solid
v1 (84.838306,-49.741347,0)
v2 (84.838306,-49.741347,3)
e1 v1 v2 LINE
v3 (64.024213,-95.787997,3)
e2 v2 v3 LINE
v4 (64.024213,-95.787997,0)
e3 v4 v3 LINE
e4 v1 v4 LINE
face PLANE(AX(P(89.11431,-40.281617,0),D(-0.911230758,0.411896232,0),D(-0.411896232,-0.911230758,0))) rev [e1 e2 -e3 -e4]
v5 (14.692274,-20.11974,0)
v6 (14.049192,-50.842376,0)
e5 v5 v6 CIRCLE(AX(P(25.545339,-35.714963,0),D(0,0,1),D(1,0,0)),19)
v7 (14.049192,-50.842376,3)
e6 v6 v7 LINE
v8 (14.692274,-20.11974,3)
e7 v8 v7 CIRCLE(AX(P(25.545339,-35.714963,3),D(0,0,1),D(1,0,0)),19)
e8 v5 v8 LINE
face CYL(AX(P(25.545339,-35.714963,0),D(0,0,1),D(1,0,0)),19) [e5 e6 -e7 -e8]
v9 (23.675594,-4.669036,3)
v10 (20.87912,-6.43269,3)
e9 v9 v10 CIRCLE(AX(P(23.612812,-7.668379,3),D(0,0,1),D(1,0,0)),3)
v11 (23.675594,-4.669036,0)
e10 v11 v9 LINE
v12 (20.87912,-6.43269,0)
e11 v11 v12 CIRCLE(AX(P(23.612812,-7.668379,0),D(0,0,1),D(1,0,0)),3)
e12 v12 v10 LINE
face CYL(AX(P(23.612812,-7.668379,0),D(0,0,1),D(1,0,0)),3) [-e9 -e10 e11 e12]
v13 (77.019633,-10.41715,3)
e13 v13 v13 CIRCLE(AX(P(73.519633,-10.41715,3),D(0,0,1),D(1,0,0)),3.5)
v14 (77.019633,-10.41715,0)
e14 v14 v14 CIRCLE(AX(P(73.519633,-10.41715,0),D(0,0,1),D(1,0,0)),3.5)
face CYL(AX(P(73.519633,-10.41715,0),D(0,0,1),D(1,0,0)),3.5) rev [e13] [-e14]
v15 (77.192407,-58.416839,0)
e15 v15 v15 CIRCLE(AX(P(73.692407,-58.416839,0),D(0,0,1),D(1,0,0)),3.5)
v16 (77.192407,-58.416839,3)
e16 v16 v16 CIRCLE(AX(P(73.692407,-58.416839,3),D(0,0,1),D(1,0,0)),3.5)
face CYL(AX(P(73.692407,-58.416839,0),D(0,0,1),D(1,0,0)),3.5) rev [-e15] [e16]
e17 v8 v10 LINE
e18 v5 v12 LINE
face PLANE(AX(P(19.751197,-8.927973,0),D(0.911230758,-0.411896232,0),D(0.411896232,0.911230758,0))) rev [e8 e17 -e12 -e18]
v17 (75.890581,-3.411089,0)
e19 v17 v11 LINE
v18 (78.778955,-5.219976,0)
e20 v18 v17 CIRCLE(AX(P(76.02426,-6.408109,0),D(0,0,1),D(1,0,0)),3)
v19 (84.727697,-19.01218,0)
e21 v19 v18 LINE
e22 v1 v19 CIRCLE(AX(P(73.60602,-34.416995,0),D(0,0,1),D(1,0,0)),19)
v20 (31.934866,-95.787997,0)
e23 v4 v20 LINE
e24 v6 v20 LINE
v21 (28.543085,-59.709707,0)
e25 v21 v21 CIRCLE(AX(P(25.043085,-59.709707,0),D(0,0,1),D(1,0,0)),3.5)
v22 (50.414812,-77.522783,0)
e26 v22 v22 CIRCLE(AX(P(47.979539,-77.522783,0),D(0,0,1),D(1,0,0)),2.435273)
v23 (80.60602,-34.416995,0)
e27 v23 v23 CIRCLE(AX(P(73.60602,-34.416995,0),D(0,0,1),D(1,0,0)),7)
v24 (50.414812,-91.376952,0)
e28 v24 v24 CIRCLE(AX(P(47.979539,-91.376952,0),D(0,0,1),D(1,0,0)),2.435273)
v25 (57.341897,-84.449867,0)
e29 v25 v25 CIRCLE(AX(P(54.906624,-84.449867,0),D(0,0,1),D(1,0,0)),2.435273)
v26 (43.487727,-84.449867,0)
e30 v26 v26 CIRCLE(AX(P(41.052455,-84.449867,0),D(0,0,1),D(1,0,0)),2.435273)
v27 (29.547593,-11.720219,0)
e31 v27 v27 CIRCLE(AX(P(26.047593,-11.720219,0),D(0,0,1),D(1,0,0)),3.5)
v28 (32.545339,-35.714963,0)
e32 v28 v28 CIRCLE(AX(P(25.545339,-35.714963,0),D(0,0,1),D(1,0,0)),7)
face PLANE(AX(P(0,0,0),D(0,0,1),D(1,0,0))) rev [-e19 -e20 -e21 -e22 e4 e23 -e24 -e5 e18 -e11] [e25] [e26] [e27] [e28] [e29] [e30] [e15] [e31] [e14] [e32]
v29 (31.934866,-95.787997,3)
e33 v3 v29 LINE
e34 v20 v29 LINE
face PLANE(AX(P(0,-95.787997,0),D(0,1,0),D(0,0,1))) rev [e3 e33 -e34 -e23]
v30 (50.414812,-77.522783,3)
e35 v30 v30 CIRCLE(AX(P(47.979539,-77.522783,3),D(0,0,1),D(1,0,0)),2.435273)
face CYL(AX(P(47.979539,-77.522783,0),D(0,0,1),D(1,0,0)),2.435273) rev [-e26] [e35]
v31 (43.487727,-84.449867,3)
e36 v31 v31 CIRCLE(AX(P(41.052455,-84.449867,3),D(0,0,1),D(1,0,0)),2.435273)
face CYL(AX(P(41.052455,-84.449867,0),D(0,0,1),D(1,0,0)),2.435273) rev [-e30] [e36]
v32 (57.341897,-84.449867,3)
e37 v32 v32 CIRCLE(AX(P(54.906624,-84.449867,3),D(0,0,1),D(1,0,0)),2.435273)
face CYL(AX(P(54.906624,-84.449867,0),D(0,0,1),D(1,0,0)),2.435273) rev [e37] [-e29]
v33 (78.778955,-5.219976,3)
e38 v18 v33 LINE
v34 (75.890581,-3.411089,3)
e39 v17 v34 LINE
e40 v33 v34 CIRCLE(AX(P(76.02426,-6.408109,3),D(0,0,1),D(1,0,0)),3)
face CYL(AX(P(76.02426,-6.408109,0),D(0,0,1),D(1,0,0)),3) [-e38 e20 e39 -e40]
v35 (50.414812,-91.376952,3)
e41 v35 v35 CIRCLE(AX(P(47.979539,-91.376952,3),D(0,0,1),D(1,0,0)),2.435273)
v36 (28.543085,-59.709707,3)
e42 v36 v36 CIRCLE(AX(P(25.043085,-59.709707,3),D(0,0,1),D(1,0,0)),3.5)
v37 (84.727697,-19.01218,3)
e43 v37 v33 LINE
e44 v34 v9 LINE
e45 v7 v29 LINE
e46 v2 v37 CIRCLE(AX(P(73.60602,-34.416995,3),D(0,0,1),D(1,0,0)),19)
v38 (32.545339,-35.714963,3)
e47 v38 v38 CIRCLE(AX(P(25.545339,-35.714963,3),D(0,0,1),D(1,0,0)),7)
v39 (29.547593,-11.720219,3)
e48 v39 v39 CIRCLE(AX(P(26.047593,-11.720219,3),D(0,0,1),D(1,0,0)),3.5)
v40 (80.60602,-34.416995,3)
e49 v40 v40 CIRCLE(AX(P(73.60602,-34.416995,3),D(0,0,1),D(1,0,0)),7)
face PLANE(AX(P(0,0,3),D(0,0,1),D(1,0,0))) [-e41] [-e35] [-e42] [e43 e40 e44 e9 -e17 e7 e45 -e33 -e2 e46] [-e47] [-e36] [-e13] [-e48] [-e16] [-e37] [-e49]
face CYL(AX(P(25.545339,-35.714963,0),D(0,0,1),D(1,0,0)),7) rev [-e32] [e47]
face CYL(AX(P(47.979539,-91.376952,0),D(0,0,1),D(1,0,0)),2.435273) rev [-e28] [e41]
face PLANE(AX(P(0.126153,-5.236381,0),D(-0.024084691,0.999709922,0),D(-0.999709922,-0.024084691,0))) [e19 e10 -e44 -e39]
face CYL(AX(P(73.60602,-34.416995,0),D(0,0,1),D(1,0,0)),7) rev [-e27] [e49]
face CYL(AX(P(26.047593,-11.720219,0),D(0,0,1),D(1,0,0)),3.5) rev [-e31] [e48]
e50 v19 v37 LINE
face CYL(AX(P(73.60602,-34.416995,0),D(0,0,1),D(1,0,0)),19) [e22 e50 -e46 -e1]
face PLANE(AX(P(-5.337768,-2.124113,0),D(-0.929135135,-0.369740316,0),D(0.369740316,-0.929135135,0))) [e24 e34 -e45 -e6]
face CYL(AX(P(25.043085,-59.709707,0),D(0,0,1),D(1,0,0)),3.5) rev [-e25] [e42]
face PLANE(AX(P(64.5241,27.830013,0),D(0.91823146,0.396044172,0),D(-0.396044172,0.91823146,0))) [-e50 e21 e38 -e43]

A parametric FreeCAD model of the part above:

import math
import FreeCAD as App
import Part
import Sketcher

V = App.Vector
Q = App.Units.Quantity


def add_polygon(sketch, points):
    """Adds a closed chain of lines whose ends are joined by coincident constraints."""
    first, n = sketch.GeometryCount, len(points)
    for a, b in zip(points, points[1:] + points[:1]):
        sketch.addGeometry(Part.LineSegment(App.Vector(*a, 0), App.Vector(*b, 0)), False)
    for i in range(n):
        sketch.addConstraint(Sketcher.Constraint("Coincident", first + i, 2, first + (i + 1) % n, 1))

doc = App.newDocument("Part")
params = doc.addObject("Spreadsheet::Sheet", "Params")
for row, (alias, value) in enumerate([
    ("sketch1_width", "95 mm"),
    ("sketch1_height", "100 mm"),
    ("pad1_length", "3 mm"),
    ("sketch2_radius", "3 mm"),
    ("sketch2_radius2", "19 mm"),
    ("sketch2_width", "95 mm"),
    ("sketch2_height", "100 mm"),
    ("pocket1_length", "3 mm"),
    ("sketch3_diameter", "14 mm"),
    ("sketch3_diameter2", "7 mm"),
    ("pocket2_length", "3 mm"),
], start=1):
    params.set(f"A{row}", alias)
    params.set(f"B{row}", "=" + value)
    params.setAlias(f"B{row}", alias)

body = doc.addObject("PartDesign::Body", "Body")

sketch1 = body.newObject("Sketcher::SketchObject", "Sketch")
sketch1.AttachmentSupport = (doc.getObject("XY_Plane"), [""])
sketch1.MapMode = "FlatFace"
add_polygon(sketch1, [(0, 0), (0, -100), (95, -100), (95, 0)])
sketch1.addConstraint([
    Sketcher.Constraint("Vertical", 0),
    Sketcher.Constraint("Horizontal", 1),
    Sketcher.Constraint("Vertical", 2),
    Sketcher.Constraint("Horizontal", 3),
    Sketcher.Constraint("Coincident", 3, 2, -1, 1),
    Sketcher.Constraint("DistanceX", 1, 1, 1, 2, Q("95 mm")),
    Sketcher.Constraint("DistanceY", 0, 2, 0, 1, Q("100 mm")),
])
sketch1.setExpression("Constraints[9]", "Params.sketch1_width")
sketch1.setExpression("Constraints[10]", "Params.sketch1_height")
pad1 = body.newObject("PartDesign::Pad", "Pad")
pad1.Profile = sketch1
pad1.setExpression("Length", "Params.pad1_length")

sketch2 = body.newObject("Sketcher::SketchObject", "Sketch001")
sketch2.AttachmentSupport = (doc.getObject("XY_Plane"), [""])
sketch2.MapMode = "FlatFace"
sketch2.AttachmentOffset = App.Placement(V(0, 0, 3), App.Rotation())
add_polygon(sketch2, [(95, -100), (95, 0), (0, 0), (0, -100)])
sketch2.addGeometry(Part.ArcOfCircle(Part.Circle(V(76.02426, -6.408109, 0), V(0, 0, 1), 3), math.radians(23.331112), math.radians(90.206234)), False)
sketch2.addGeometry(Part.LineSegment(V(78.778955, -5.219976, 0), V(84.727697, -19.01218, 0)), False)
sketch2.addGeometry(Part.ArcOfCircle(Part.Circle(V(73.60602, -34.416995, 0), V(0, 0, 1), 19), math.radians(-53.759713), math.radians(54.172182)), False)
sketch2.addGeometry(Part.LineSegment(V(84.838306, -49.741347, 0), V(64.024213, -95.787997, 0)), False)
sketch2.addGeometry(Part.LineSegment(V(64.024213, -95.787997, 0), V(31.934866, -95.787997, 0)), False)
sketch2.addGeometry(Part.LineSegment(V(31.934866, -95.787997, 0), V(14.049192, -50.842376, 0)), False)
sketch2.addGeometry(Part.ArcOfCircle(Part.Circle(V(25.545339, -35.714963, 0), V(0, 0, 1), 19), math.radians(124.834922), math.radians(232.766816)), False)
sketch2.addGeometry(Part.LineSegment(V(14.692274, -20.11974, 0), V(20.87912, -6.43269, 0)), False)
sketch2.addGeometry(Part.ArcOfCircle(Part.Circle(V(23.612812, -7.668379, 0), V(0, 0, 1), 3), math.radians(88.800869), math.radians(155.675991)), False)
sketch2.addGeometry(Part.LineSegment(V(23.675594, -4.669036, 0), V(75.890581, -3.411089, 0)), False)
sketch2.addGeometry(Part.ArcOfCircle(Part.Circle(V(76.02426, -6.408107, 0), V(0, 0, 1), 2.999998), math.radians(90.206233), math.radians(92.553936)), False)
sketch2.addConstraint([
    Sketcher.Constraint("Tangent", 4, 1, 5, 1),
    Sketcher.Constraint("Coincident", 5, 2, 6, 2),
    Sketcher.Constraint("Coincident", 6, 1, 7, 1),
    Sketcher.Constraint("Coincident", 7, 2, 8, 1),
    Sketcher.Constraint("Coincident", 8, 2, 9, 1),
    Sketcher.Constraint("Coincident", 9, 2, 10, 2),
    Sketcher.Constraint("Coincident", 10, 1, 11, 1),
    Sketcher.Constraint("Tangent", 11, 2, 12, 2),
    Sketcher.Constraint("Coincident", 12, 1, 13, 1),
    Sketcher.Constraint("Coincident", 13, 2, 14, 2),
    Sketcher.Constraint("Tangent", 14, 1, 4, 2),
    Sketcher.Constraint("Vertical", 0),
    Sketcher.Constraint("Horizontal", 1),
    Sketcher.Constraint("Vertical", 2),
    Sketcher.Constraint("Horizontal", 3),
    Sketcher.Constraint("Horizontal", 8),
    Sketcher.Constraint("Coincident", 1, 2, -1, 1),
    Sketcher.Constraint("Equal", 6, 10),
    Sketcher.Constraint("Equal", 4, 12),
    Sketcher.Constraint("Parallel", 7, 11),
    Sketcher.Constraint("Equal", 5, 11),
    Sketcher.Constraint("Radius", 4, Q("3 mm")),
    Sketcher.Constraint("Radius", 6, Q("19 mm")),
    Sketcher.Constraint("DistanceX", 1, 2, 1, 1, Q("95 mm")),
    Sketcher.Constraint("DistanceY", 0, 1, 0, 2, Q("100 mm")),
    Sketcher.Constraint("Radius", 14, Q("2.999998 mm")),
    Sketcher.Constraint("Distance", 5, Q("15.0204 mm")),
    Sketcher.Constraint("DistanceX", 14, 1, 14, 3, Q("0.010798 mm")),
    Sketcher.Constraint("Distance", 7, Q("50.532371 mm")),
    Sketcher.Constraint("Distance", 9, Q("48.373611 mm")),
    Sketcher.Constraint("Distance", 13, Q("52.230138 mm")),
    Sketcher.Constraint("DistanceX", 8, 2, 8, 1, Q("32.089346 mm")),
    Sketcher.Constraint("DistanceX", -1, 1, 4, 3, Q("76.02426 mm")),
    Sketcher.Constraint("DistanceY", 4, 3, -1, 1, Q("6.408109 mm")),
    Sketcher.Constraint("DistanceX", -1, 1, 6, 3, Q("73.60602 mm")),
    Sketcher.Constraint("DistanceX", -1, 1, 10, 3, Q("25.545339 mm")),
    Sketcher.Constraint("DistanceX", -1, 1, 12, 3, Q("23.612812 mm")),
    Sketcher.Constraint("DistanceY", 12, 3, -1, 1, Q("7.668379 mm")),
    Sketcher.Constraint("DistanceY", 5, 2, -1, 1, Q("19.01218 mm")),
    Sketcher.Constraint("DistanceY", 10, 1, -1, 1, Q("20.11974 mm")),
    Sketcher.Constraint("DistanceX", -1, 1, 13, 2, Q("75.890581 mm")),
    Sketcher.Constraint("DistanceY", 6, 1, 6, 3, Q("15.324352 mm")),
])
sketch2.setExpression("Constraints[25]", "Params.sketch2_radius")
sketch2.setExpression("Constraints[26]", "Params.sketch2_radius2")
sketch2.setExpression("Constraints[27]", "Params.sketch2_width")
sketch2.setExpression("Constraints[28]", "Params.sketch2_height")
pocket1 = body.newObject("PartDesign::Pocket", "Pocket")
pocket1.Profile = sketch2
pocket1.setExpression("Length", "Params.pocket1_length")

sketch3 = body.newObject("Sketcher::SketchObject", "Sketch002")
sketch3.AttachmentSupport = (doc.getObject("XY_Plane"), [""])
sketch3.MapMode = "FlatFace"
sketch3.AttachmentOffset = App.Placement(V(0, 0, 3), App.Rotation())
sketch3.addGeometry([
    Part.Circle(V(54.906624, -84.449867, 0), V(0, 0, 1), 2.435273),
    Part.Circle(V(47.979539, -91.376952, 0), V(0, 0, 1), 2.435273),
    Part.Circle(V(41.052455, -84.449867, 0), V(0, 0, 1), 2.435273),
    Part.Circle(V(47.979539, -77.522783, 0), V(0, 0, 1), 2.435273),
    Part.Circle(V(73.60602, -34.416995, 0), V(0, 0, 1), 7),
    Part.Circle(V(25.545339, -35.714963, 0), V(0, 0, 1), 7),
    Part.Circle(V(25.043085, -59.709707, 0), V(0, 0, 1), 3.5),
    Part.Circle(V(26.047593, -11.720219, 0), V(0, 0, 1), 3.5),
    Part.Circle(V(73.692407, -58.416839, 0), V(0, 0, 1), 3.5),
    Part.Circle(V(73.519633, -10.41715, 0), V(0, 0, 1), 3.5),
], False)
sketch3.addConstraint([
    Sketcher.Constraint("Equal", 0, 1),
    Sketcher.Constraint("Equal", 1, 2),
    Sketcher.Constraint("Equal", 2, 3),
    Sketcher.Constraint("Equal", 4, 5),
    Sketcher.Constraint("Equal", 6, 7),
    Sketcher.Constraint("Equal", 7, 8),
    Sketcher.Constraint("Equal", 8, 9),
    Sketcher.Constraint("Horizontal", 0, 3, 2, 3),
    Sketcher.Constraint("Vertical", 1, 3, 3, 3),
    Sketcher.Constraint("Diameter", 4, Q("14 mm")),
    Sketcher.Constraint("Diameter", 6, Q("7 mm")),
    Sketcher.Constraint("Diameter", 0, Q("4.870545 mm")),
    Sketcher.Constraint("DistanceX", 5, 3, 3, 3, Q("22.434201 mm")),
    Sketcher.Constraint("DistanceX", -1, 1, 1, 3, Q("47.979539 mm")),
    Sketcher.Constraint("DistanceX", -1, 1, 4, 3, Q("73.60602 mm")),
    Sketcher.Constraint("DistanceY", 7, 3, -1, 1, Q("11.720219 mm")),
    Sketcher.Constraint("DistanceY", 8, 3, -1, 1, Q("58.416839 mm")),
    Sketcher.Constraint("DistanceY", 9, 3, -1, 1, Q("10.41715 mm")),
    Sketcher.Constraint("DistanceX", 2, 3, 0, 3, Q("13.854169 mm")),
    Sketcher.Constraint("DistanceY", 1, 3, 3, 3, Q("13.854169 mm")),
    Sketcher.Constraint("DistanceY", 3, 3, 5, 3, Q("41.807819 mm")),
    Sketcher.Constraint("DistanceY", 5, 3, 4, 3, Q("1.297968 mm")),
    Sketcher.Constraint("DistanceX", 6, 3, 2, 3, Q("16.00937 mm")),
    Sketcher.Constraint("DistanceY", 2, 3, 6, 3, Q("24.74016 mm")),
    Sketcher.Constraint("DistanceX", 6, 3, 7, 3, Q("1.004508 mm")),
    Sketcher.Constraint("DistanceY", 6, 3, 7, 3, Q("47.989488 mm")),
    Sketcher.Constraint("DistanceX", 7, 3, 9, 3, Q("47.47204 mm")),
    Sketcher.Constraint("DistanceX", -1, 1, 0, 3, Q("54.906624 mm")),
    Sketcher.Constraint("DistanceY", 1, 3, -1, 1, Q("91.376952 mm")),
    Sketcher.Constraint("DistanceX", -1, 1, 8, 3, Q("73.692407 mm")),
])
sketch3.setExpression("Constraints[9]", "Params.sketch3_diameter")
sketch3.setExpression("Constraints[10]", "Params.sketch3_diameter2")
pocket2 = body.newObject("PartDesign::Pocket", "Pocket001")
pocket2.Profile = sketch3
pocket2.setExpression("Length", "Params.pocket2_length")

doc.recompute()
